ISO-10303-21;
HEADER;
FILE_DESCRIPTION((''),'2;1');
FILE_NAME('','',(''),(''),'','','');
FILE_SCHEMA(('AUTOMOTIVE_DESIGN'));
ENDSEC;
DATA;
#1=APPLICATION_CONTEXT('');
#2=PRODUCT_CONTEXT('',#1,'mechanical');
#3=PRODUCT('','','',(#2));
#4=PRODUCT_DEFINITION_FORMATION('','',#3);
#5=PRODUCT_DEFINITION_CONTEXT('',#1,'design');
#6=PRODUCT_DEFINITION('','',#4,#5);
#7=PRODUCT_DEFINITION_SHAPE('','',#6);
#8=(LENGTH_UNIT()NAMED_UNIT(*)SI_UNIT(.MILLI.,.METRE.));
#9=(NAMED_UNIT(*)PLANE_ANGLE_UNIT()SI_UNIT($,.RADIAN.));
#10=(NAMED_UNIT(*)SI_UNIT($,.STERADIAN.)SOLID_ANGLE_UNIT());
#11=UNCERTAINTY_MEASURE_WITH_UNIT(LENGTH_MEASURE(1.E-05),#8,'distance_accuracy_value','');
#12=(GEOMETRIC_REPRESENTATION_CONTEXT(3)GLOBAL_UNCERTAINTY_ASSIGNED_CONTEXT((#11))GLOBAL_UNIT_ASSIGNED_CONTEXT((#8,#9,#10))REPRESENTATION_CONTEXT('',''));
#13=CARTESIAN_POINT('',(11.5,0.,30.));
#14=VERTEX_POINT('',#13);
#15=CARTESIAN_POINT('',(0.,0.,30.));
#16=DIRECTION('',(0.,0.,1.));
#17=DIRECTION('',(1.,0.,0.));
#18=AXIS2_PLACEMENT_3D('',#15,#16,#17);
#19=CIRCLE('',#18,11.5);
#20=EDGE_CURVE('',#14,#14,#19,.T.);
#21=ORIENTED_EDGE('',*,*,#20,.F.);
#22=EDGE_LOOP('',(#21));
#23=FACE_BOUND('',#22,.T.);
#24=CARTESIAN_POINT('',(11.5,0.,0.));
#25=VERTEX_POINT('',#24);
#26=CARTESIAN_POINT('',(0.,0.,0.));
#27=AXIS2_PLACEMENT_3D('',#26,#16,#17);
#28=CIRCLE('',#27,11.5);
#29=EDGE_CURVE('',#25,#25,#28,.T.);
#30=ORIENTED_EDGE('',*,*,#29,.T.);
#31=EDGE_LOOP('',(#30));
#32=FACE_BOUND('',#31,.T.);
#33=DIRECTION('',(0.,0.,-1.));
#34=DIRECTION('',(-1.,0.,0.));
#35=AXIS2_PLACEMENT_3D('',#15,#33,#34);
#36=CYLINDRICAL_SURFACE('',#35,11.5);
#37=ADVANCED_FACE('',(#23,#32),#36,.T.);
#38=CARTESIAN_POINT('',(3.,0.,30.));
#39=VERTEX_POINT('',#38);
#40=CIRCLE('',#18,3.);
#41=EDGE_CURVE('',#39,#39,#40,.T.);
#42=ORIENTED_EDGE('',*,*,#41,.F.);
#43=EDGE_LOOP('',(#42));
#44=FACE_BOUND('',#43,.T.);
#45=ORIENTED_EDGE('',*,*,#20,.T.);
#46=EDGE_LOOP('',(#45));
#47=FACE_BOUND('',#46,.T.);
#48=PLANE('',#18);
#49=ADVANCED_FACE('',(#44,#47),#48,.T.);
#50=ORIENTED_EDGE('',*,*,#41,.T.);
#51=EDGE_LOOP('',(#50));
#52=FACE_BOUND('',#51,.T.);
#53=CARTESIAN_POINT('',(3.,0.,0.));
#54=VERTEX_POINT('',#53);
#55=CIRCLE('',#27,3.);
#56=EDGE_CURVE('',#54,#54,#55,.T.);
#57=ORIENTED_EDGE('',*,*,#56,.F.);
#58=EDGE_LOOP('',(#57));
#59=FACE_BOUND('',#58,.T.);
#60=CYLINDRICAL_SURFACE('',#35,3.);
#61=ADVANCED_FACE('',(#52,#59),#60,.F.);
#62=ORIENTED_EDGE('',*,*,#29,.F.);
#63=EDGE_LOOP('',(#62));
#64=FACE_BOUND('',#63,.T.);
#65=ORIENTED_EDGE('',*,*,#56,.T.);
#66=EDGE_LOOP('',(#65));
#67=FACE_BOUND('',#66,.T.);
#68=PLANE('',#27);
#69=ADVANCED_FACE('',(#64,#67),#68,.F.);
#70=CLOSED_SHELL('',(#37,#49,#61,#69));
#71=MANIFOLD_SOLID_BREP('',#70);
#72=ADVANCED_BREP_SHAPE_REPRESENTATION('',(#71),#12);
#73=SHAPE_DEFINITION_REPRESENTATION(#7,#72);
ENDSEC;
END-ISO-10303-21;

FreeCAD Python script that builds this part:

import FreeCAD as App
import Part
import Sketcher

doc = App.newDocument("Part")
body = doc.addObject("PartDesign::Body", "Body")

sketch1 = body.newObject("Sketcher::SketchObject", "Sketch")
sketch1.AttachmentSupport = (doc.getObject("XY_Plane"), [""])
sketch1.MapMode = "FlatFace"
sketch1.addGeometry([
    Part.Circle(App.Vector(0, 0, 0), App.Vector(0, 0, 1), 11.5),
    Part.Circle(App.Vector(0, 0, 0), App.Vector(0, 0, 1), 3),
], False)
sketch1.addConstraint([
    Sketcher.Constraint("Coincident", 0, 3, -1, 1),
    Sketcher.Constraint("Coincident", 1, 3, -1, 1),
    Sketcher.Constraint("Diameter", 0, 23.0),
    Sketcher.Constraint("Diameter", 1, 6.0),
])
pad1 = body.newObject("PartDesign::Pad", "Pad")
pad1.Profile = sketch1
pad1.Length = 30

doc.recompute()
